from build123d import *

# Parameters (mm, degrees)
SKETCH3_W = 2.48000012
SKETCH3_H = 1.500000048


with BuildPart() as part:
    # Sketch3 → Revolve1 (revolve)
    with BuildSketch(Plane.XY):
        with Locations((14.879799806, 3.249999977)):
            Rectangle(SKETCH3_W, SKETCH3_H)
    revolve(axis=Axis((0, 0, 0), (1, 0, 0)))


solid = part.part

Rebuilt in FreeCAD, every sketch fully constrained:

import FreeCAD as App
import Part
import Sketcher
from FreeCAD import Vector


def add_polygon(sketch, points):
    """Adds a closed chain of lines whose ends are joined by coincident constraints."""
    first, n = sketch.GeometryCount, len(points)
    for a, b in zip(points, points[1:] + points[:1]):
        sketch.addGeometry(Part.LineSegment(App.Vector(*a, 0), App.Vector(*b, 0)), False)
    for i in range(n):
        sketch.addConstraint(Sketcher.Constraint("Coincident", first + i, 2, first + (i + 1) % n, 1))

doc = App.newDocument("Part")
params = doc.addObject("Spreadsheet::Sheet", "Params")
for row, (alias, value) in enumerate([
    ("sketch1_height", "1.5 mm"),
    ("sketch1_width", "2.48 mm"),
    ("revolution_angle", "360 deg"),
], start=1):
    params.set(f"A{row}", alias)
    params.set(f"B{row}", "=" + value)
    params.setAlias(f"B{row}", alias)

body = doc.addObject("PartDesign::Body", "Body")

# Sketch on XY plane
sketch1 = body.newObject("Sketcher::SketchObject", "Sketch")
sketch1.AttachmentSupport = (doc.getObject("XY_Plane"), [""])
sketch1.MapMode = "FlatFace"
add_polygon(sketch1, [(13.6398, 4), (13.6398, 2.5), (16.1198, 2.5), (16.1198, 4)])  # lines 0-3
sketch1.addConstraint([
    Sketcher.Constraint("Vertical", 0),
    Sketcher.Constraint("Horizontal", 1),
    Sketcher.Constraint("Vertical", 2),
    Sketcher.Constraint("Horizontal", 3),
    Sketcher.Constraint("DistanceY", 0, 2, 0, 1, 1.5),
    Sketcher.Constraint("DistanceY", -1, 1, 2, 2, 4.0),
    Sketcher.Constraint("DistanceX", 1, 1, 1, 2, 2.48),
    Sketcher.Constraint("DistanceX", -1, 1, 0, 2, 13.6398),
])
sketch1.setExpression("Constraints[8]", "Params.sketch1_height")
sketch1.setExpression("Constraints[10]", "Params.sketch1_width")
revolution = body.newObject("PartDesign::Revolution", "Revolution")
revolution.Profile = sketch1
revolution.ReferenceAxis = (sketch1, ["H_Axis"])
revolution.setExpression("Angle", "Params.revolution_angle")

doc.recompute()
